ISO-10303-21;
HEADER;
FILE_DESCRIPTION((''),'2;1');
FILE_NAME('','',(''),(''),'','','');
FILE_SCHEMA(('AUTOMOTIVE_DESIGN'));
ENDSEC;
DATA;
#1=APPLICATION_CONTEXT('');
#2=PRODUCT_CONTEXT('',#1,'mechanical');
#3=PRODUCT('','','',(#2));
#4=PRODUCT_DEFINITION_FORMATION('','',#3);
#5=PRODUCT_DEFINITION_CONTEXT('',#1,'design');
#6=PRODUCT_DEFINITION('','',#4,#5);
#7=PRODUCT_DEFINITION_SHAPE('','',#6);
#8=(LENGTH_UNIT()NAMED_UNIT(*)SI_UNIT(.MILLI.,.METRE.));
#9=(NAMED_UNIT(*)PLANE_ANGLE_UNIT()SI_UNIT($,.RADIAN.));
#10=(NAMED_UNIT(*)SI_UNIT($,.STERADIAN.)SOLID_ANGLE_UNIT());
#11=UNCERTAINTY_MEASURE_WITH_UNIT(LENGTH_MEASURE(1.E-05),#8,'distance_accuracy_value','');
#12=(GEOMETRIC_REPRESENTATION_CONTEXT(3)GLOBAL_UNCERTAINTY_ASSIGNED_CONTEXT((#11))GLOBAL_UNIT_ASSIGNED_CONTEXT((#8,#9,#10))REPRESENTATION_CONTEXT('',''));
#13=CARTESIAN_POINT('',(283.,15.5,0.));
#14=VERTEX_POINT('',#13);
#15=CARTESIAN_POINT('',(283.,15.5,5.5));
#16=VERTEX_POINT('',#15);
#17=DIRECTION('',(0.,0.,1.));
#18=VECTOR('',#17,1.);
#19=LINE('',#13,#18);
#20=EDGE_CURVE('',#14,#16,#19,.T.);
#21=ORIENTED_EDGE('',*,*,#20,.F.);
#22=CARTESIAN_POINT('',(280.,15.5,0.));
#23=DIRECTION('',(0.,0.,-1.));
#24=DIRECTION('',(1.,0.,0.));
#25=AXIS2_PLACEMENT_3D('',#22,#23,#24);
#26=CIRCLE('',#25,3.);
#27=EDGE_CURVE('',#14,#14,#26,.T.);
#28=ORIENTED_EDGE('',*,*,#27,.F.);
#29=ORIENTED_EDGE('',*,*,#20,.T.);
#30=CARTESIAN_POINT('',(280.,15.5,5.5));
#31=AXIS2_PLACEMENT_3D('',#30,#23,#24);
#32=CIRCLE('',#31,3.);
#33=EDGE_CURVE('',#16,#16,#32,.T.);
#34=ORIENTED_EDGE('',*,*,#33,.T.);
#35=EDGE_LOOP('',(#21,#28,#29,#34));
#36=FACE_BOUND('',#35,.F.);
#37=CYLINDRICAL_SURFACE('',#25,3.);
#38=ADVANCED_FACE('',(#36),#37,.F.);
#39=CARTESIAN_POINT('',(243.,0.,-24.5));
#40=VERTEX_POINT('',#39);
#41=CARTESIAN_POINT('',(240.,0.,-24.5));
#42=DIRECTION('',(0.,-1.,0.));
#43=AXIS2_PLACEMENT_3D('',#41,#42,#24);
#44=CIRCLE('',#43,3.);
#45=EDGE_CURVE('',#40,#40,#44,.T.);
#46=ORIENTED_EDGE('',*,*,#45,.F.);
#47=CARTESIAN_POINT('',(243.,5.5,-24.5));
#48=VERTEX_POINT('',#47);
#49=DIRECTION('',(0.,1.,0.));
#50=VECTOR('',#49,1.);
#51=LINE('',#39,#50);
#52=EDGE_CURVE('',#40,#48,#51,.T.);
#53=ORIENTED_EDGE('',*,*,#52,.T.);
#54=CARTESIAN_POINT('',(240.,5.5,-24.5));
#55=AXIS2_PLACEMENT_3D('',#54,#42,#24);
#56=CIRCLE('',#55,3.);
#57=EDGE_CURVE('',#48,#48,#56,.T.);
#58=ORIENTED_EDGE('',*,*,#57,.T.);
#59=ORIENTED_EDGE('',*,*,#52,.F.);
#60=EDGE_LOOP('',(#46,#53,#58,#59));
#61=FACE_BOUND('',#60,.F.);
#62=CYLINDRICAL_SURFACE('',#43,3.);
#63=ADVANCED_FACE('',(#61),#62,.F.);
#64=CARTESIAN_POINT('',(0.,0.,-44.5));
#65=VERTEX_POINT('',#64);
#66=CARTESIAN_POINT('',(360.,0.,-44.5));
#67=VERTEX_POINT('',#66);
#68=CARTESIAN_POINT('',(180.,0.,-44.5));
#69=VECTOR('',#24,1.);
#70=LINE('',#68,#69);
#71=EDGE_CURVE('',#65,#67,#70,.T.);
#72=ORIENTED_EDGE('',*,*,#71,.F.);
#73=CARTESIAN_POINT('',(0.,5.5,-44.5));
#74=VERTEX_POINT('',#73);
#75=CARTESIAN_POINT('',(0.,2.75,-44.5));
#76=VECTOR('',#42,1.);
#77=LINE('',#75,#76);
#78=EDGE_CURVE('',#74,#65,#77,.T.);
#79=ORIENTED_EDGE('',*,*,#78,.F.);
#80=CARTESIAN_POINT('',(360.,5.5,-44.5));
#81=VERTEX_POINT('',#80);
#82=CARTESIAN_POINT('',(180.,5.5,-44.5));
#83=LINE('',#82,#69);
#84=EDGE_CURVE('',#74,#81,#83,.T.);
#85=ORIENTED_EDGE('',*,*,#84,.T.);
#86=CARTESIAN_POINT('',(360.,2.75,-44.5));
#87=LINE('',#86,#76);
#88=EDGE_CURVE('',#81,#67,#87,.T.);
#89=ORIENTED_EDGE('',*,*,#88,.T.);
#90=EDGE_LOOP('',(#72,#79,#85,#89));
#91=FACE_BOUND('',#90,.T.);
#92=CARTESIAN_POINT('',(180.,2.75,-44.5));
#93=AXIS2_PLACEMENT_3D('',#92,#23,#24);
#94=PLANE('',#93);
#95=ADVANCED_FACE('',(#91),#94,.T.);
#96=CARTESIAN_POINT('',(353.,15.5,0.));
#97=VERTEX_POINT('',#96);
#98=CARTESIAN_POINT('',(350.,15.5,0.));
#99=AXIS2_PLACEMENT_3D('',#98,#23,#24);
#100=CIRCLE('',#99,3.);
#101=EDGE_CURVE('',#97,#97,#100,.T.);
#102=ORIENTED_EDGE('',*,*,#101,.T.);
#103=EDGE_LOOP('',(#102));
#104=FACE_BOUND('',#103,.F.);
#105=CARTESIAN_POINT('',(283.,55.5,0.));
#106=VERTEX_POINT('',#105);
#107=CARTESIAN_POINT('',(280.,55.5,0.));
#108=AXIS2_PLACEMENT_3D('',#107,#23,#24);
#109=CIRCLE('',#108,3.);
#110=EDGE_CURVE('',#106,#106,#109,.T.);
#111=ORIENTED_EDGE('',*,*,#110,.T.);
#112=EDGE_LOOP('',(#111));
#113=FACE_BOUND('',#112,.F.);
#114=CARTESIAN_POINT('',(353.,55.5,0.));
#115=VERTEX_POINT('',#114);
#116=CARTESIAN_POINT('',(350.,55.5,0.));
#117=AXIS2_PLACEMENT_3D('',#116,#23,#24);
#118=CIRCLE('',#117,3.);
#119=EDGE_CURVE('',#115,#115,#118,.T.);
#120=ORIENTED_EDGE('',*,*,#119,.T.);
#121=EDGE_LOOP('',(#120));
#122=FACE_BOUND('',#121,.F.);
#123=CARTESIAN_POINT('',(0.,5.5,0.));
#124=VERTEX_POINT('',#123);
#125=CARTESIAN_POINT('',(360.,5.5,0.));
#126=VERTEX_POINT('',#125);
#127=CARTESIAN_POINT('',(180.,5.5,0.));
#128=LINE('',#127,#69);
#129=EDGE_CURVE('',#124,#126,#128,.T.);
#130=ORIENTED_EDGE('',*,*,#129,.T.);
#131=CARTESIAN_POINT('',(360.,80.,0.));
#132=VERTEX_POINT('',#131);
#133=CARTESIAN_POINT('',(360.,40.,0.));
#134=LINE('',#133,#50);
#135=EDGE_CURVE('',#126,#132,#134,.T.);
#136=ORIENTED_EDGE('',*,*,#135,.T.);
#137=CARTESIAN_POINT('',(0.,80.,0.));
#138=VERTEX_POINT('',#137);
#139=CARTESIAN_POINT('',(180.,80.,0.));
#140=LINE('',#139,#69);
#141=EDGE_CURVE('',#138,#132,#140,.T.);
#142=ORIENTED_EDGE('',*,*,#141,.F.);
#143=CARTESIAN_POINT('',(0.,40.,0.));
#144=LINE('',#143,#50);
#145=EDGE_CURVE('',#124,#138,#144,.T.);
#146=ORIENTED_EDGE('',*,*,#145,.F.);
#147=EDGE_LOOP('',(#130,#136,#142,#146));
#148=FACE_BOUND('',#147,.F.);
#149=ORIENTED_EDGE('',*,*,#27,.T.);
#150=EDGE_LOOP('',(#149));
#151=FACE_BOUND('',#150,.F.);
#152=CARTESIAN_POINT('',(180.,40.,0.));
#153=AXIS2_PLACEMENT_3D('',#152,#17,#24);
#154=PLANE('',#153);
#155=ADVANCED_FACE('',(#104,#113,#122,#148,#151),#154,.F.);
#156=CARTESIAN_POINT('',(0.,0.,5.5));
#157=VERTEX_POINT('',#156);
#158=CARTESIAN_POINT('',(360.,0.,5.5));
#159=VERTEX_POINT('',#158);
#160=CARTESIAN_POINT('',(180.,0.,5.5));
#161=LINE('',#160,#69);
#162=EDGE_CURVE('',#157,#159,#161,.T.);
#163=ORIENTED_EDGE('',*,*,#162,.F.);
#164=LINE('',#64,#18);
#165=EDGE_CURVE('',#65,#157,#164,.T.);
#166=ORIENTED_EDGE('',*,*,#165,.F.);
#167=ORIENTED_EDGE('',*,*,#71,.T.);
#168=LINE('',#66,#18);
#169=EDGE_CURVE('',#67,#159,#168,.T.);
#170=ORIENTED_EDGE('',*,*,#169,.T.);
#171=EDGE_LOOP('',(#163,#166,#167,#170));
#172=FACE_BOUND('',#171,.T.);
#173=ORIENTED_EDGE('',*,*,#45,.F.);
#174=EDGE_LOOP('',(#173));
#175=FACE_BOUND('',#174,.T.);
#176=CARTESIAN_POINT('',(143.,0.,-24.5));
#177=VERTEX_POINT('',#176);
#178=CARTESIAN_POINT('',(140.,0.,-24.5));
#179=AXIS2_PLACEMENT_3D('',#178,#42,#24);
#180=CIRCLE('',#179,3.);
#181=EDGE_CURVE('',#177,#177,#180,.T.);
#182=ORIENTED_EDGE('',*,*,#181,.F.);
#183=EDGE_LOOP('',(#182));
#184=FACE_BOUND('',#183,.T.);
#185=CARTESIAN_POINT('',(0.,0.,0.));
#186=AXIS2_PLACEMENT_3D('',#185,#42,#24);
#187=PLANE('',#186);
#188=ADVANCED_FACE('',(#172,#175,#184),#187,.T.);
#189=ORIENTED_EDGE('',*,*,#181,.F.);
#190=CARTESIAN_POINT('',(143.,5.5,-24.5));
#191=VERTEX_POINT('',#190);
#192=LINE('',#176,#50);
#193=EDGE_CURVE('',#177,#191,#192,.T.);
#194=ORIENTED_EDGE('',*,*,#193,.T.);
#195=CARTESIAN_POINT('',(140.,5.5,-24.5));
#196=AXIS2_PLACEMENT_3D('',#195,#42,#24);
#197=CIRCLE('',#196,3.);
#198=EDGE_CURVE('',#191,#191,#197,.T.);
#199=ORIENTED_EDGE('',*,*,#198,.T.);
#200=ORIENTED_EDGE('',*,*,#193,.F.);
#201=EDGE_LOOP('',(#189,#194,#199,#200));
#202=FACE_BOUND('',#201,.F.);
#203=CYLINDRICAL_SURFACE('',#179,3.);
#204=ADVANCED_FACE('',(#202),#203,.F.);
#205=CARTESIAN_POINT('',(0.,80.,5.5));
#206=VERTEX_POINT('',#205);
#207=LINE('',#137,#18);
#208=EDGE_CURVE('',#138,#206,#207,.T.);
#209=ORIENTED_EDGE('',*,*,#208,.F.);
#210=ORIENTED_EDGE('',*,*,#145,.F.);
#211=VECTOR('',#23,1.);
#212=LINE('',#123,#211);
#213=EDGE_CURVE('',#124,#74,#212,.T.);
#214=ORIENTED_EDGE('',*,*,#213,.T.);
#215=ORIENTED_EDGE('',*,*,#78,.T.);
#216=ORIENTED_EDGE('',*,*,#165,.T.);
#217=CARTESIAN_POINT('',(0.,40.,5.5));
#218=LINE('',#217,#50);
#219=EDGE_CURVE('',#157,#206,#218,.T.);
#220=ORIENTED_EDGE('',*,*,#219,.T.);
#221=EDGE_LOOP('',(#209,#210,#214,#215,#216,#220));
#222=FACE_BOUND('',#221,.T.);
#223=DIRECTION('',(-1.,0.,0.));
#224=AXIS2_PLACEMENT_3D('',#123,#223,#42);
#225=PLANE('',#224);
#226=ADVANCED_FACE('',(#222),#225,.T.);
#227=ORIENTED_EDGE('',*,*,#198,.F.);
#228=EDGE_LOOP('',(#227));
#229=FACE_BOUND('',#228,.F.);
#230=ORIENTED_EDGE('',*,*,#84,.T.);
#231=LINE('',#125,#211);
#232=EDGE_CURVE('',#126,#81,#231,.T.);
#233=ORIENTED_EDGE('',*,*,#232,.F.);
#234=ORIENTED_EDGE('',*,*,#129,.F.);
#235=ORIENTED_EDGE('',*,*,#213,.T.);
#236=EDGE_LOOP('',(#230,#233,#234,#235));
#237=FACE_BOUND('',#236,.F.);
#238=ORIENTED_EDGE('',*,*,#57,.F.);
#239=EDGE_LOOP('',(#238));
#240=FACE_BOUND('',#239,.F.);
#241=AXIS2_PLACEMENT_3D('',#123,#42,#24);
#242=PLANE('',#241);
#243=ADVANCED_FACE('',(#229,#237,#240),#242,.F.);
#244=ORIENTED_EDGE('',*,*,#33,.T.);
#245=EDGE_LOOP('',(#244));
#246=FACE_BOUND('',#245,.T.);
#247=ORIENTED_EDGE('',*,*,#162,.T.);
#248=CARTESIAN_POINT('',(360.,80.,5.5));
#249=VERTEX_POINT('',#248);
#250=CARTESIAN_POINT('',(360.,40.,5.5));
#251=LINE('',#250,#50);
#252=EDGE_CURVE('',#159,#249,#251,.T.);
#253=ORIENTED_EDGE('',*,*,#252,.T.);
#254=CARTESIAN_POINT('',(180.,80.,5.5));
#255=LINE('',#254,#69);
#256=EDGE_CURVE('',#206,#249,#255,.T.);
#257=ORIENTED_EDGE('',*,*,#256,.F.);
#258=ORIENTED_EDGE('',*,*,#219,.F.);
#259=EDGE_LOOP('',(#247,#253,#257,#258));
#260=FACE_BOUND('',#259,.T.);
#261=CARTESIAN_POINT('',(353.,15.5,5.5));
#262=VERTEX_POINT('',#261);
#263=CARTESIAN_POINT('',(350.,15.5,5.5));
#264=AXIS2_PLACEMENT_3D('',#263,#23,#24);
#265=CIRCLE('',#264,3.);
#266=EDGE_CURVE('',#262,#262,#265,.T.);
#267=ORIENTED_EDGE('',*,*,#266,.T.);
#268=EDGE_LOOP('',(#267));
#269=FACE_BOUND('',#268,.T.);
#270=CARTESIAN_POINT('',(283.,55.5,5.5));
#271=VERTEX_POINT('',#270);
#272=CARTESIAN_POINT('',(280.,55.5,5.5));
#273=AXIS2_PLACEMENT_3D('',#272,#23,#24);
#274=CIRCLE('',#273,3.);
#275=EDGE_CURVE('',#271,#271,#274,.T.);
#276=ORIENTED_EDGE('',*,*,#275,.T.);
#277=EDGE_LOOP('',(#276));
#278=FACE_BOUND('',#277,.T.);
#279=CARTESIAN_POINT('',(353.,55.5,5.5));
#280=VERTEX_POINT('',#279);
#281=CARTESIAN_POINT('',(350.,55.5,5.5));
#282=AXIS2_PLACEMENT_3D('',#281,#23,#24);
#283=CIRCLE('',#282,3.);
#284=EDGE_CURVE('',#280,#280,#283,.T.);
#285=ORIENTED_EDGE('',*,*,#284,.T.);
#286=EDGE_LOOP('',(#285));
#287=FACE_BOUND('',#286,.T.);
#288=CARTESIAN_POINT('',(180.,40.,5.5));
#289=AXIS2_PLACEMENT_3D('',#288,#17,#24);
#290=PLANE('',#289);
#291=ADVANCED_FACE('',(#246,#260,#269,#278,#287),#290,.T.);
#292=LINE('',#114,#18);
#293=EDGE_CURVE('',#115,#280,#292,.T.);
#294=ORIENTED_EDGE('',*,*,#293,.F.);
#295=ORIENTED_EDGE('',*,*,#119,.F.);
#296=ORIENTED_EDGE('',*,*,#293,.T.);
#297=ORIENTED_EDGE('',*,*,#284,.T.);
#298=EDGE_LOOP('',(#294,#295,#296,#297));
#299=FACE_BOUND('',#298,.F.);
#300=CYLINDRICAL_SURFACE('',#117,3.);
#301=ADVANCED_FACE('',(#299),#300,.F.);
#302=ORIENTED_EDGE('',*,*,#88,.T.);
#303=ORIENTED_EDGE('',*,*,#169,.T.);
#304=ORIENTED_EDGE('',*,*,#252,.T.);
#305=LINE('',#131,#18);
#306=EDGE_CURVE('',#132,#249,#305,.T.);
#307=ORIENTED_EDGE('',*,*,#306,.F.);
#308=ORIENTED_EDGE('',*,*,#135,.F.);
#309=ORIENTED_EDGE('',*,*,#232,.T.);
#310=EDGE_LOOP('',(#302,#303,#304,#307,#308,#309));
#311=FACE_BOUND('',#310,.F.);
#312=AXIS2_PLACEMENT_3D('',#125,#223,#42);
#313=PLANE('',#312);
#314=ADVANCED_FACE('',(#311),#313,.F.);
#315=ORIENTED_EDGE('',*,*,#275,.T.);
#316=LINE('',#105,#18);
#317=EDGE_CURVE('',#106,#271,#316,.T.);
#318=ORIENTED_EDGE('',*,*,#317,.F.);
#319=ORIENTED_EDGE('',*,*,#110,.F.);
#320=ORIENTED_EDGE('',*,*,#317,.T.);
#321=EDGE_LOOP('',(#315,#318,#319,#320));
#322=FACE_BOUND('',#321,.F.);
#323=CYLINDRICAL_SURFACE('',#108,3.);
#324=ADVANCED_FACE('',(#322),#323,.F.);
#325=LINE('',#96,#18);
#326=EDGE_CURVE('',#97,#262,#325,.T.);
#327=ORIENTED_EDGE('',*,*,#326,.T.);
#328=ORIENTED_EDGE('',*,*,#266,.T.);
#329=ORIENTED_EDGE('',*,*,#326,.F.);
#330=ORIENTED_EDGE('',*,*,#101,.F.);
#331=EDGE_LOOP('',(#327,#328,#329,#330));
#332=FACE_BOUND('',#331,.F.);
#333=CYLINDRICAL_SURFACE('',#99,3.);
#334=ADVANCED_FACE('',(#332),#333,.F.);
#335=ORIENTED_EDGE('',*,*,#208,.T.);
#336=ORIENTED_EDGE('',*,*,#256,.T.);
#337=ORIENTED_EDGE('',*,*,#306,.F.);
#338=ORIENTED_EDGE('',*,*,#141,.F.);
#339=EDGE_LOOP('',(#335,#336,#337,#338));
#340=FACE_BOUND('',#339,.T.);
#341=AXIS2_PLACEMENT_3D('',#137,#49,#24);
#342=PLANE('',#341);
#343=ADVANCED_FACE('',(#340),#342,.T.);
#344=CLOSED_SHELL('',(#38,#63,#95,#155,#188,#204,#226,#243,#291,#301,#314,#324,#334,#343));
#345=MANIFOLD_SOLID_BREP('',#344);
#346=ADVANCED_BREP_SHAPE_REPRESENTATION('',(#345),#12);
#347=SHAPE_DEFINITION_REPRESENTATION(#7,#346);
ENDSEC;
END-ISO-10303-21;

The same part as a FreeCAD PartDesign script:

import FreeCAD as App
import Part
import Sketcher
Q = App.Units.Quantity


def add_polygon(sketch, points):
    """Adds a closed chain of lines whose ends are joined by coincident constraints."""
    first, n = sketch.GeometryCount, len(points)
    for a, b in zip(points, points[1:] + points[:1]):
        sketch.addGeometry(Part.LineSegment(App.Vector(*a, 0), App.Vector(*b, 0)), False)
    for i in range(n):
        sketch.addConstraint(Sketcher.Constraint("Coincident", first + i, 2, first + (i + 1) % n, 1))

doc = App.newDocument("Part")
params = doc.addObject("Spreadsheet::Sheet", "Params")
for row, (alias, value) in enumerate([
    ("sketch1_width", "360 mm"),
    ("sketch1_height", "80 mm"),
    ("pad1_length", "5.5 mm"),
    ("sketch2_width", "360 mm"),
    ("sketch2_height", "5.5 mm"),
    ("pad2_length", "44.5 mm"),
    ("sketch3_diameter", "6 mm"),
    ("pocket1_length", "25 mm"),
    ("sketch4_diameter", "6 mm"),
    ("pocket2_length", "25 mm"),
], start=1):
    params.set(f"A{row}", alias)
    params.set(f"B{row}", "=" + value)
    params.setAlias(f"B{row}", alias)

body = doc.addObject("PartDesign::Body", "Body")

sketch1 = body.newObject("Sketcher::SketchObject", "Sketch")
sketch1.AttachmentSupport = (doc.getObject("XY_Plane"), [""])
sketch1.MapMode = "FlatFace"
add_polygon(sketch1, [(0, 80), (0, 0), (360, 0), (360, 80)])
sketch1.addConstraint(Sketcher.Constraint("Vertical", 0))
sketch1.addConstraint(Sketcher.Constraint("Horizontal", 1))
sketch1.addConstraint(Sketcher.Constraint("Vertical", 2))
sketch1.addConstraint(Sketcher.Constraint("Horizontal", 3))
sketch1.addConstraint(Sketcher.Constraint("Coincident", 0, 2, -1, 1))
sketch1.addConstraint(Sketcher.Constraint("DistanceX", 1, 1, 1, 2, Q("360 mm")))
sketch1.addConstraint(Sketcher.Constraint("DistanceY", 0, 2, 0, 1, Q("80 mm")))
sketch1.setExpression("Constraints[9]", "Params.sketch1_width")
sketch1.setExpression("Constraints[10]", "Params.sketch1_height")
pad1 = body.newObject("PartDesign::Pad", "Pad")
pad1.Profile = sketch1
pad1.setExpression("Length", "Params.pad1_length")

sketch2 = body.newObject("Sketcher::SketchObject", "Sketch001")
sketch2.AttachmentSupport = (doc.getObject("XY_Plane"), [""])
sketch2.MapMode = "FlatFace"
add_polygon(sketch2, [(0, 0), (0, 5.5), (360, 5.5), (360, 0)])
sketch2.addConstraint(Sketcher.Constraint("Vertical", 0))
sketch2.addConstraint(Sketcher.Constraint("Horizontal", 1))
sketch2.addConstraint(Sketcher.Constraint("Vertical", 2))
sketch2.addConstraint(Sketcher.Constraint("Horizontal", 3))
sketch2.addConstraint(Sketcher.Constraint("Coincident", 3, 2, -1, 1))
sketch2.addConstraint(Sketcher.Constraint("DistanceX", 1, 1, 1, 2, Q("360 mm")))
sketch2.addConstraint(Sketcher.Constraint("DistanceY", 0, 1, 0, 2, Q("5.5 mm")))
sketch2.setExpression("Constraints[9]", "Params.sketch2_width")
sketch2.setExpression("Constraints[10]", "Params.sketch2_height")
pad2 = body.newObject("PartDesign::Pad", "Pad001")
pad2.Profile = sketch2
pad2.setExpression("Length", "Params.pad2_length")
pad2.Reversed = True

sketch3 = body.newObject("Sketcher::SketchObject", "Sketch002")
sketch3.AttachmentSupport = (doc.getObject("XZ_Plane"), [""])
sketch3.MapMode = "FlatFace"
sketch3.addGeometry(Part.Circle(App.Vector(140, -24.5, 0), App.Vector(0, 0, 1), 3), False)
sketch3.addGeometry(Part.Circle(App.Vector(240, -24.5, 0), App.Vector(0, 0, 1), 3), False)
sketch3.addConstraint(Sketcher.Constraint("Equal", 0, 1))
sketch3.addConstraint(Sketcher.Constraint("Horizontal", 0, 3, 1, 3))
sketch3.addConstraint(Sketcher.Constraint("Diameter", 0, Q("6 mm")))
sketch3.addConstraint(Sketcher.Constraint("DistanceX", -1, 1, 0, 3, Q("140 mm")))
sketch3.addConstraint(Sketcher.Constraint("DistanceX", -1, 1, 1, 3, Q("240 mm")))
sketch3.addConstraint(Sketcher.Constraint("DistanceY", 0, 3, -1, 1, Q("24.5 mm")))
sketch3.setExpression("Constraints[2]", "Params.sketch3_diameter")
pocket1 = body.newObject("PartDesign::Pocket", "Pocket")
pocket1.Profile = sketch3
pocket1.setExpression("Length", "Params.pocket1_length")

sketch4 = body.newObject("Sketcher::SketchObject", "Sketch003")
sketch4.AttachmentSupport = (doc.getObject("XY_Plane"), [""])
sketch4.MapMode = "FlatFace"
sketch4.addGeometry(Part.Circle(App.Vector(280, 15.5, 0), App.Vector(0, 0, 1), 3), False)
sketch4.addGeometry(Part.Circle(App.Vector(280, 55.5, 0), App.Vector(0, 0, 1), 3), False)
sketch4.addGeometry(Part.Circle(App.Vector(350, 55.5, 0), App.Vector(0, 0, 1), 3), False)
sketch4.addGeometry(Part.Circle(App.Vector(350, 15.5, 0), App.Vector(0, 0, 1), 3), False)
sketch4.addConstraint(Sketcher.Constraint("Equal", 0, 1))
sketch4.addConstraint(Sketcher.Constraint("Equal", 1, 2))
sketch4.addConstraint(Sketcher.Constraint("Equal", 2, 3))
sketch4.addConstraint(Sketcher.Constraint("Horizontal", 1, 3, 2, 3))
sketch4.addConstraint(Sketcher.Constraint("Horizontal", 0, 3, 3, 3))
sketch4.addConstraint(Sketcher.Constraint("Vertical", 0, 3, 1, 3))
sketch4.addConstraint(Sketcher.Constraint("Vertical", 2, 3, 3, 3))
sketch4.addConstraint(Sketcher.Constraint("Diameter", 0, Q("6 mm")))
sketch4.addConstraint(Sketcher.Constraint("DistanceX", -1, 1, 0, 3, Q("280 mm")))
sketch4.addConstraint(Sketcher.Constraint("DistanceX", -1, 1, 2, 3, Q("350 mm")))
sketch4.addConstraint(Sketcher.Constraint("DistanceY", 0, 3, 1, 3, Q("40 mm")))
sketch4.addConstraint(Sketcher.Constraint("DistanceY", -1, 1, 0, 3, Q("15.5 mm")))
sketch4.setExpression("Constraints[7]", "Params.sketch4_diameter")
pocket2 = body.newObject("PartDesign::Pocket", "Pocket001")
pocket2.Profile = sketch4
pocket2.setExpression("Length", "Params.pocket2_length")
pocket2.Reversed = True

doc.recompute()
